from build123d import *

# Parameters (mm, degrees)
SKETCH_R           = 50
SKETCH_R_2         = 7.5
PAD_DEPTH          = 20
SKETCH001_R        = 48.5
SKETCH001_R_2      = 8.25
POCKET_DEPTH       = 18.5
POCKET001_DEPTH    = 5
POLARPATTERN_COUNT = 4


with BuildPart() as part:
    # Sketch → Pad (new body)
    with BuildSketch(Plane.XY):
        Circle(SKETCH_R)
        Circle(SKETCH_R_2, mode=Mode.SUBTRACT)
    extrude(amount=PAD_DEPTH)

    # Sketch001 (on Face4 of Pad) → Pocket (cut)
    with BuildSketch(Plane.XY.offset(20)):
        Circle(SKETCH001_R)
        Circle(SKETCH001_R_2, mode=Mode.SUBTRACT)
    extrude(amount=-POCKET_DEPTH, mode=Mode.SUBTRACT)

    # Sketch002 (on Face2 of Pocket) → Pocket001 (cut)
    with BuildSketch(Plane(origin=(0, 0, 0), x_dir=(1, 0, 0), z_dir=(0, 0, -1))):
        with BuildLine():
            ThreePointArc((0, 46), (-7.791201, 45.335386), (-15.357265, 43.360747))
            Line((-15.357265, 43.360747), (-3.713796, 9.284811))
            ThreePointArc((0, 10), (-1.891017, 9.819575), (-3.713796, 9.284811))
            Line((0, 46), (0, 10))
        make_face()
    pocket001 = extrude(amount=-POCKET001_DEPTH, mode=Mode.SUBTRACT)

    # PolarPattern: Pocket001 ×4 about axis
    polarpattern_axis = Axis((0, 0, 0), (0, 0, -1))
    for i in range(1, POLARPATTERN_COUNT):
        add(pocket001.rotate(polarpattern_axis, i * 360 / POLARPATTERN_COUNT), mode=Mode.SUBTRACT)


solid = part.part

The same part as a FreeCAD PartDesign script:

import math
import FreeCAD as App
import Part
import Sketcher
from FreeCAD import Vector

doc = App.newDocument("Part")
body = doc.addObject("PartDesign::Body", "Body")

sketch1 = doc.addObject("Sketcher::SketchObject", "Sketch")
body.addObject(sketch1)
sketch1.AttachmentSupport = (doc.XY_Plane, [""])
sketch1.MapMode = "FlatFace"
sketch1.addGeometry(Part.Circle(Vector(0, 0, 0), Vector(0, 0, 1), 50), False)
sketch1.addGeometry(Part.Circle(Vector(0, 0, 0), Vector(0, 0, 1), 8), False)
sketch1.addConstraint(Sketcher.Constraint("Coincident", 0, 3, -1, 1))
sketch1.addConstraint(Sketcher.Constraint("Coincident", 1, 3, -1, 1))
sketch1.addConstraint(Sketcher.Constraint("Diameter", 0, 100.0))
sketch1.addConstraint(Sketcher.Constraint("Diameter", 1, 15.0))
pad1 = doc.addObject("PartDesign::Pad", "Pad")
body.addObject(pad1)
pad1.Profile = sketch1
pad1.Length = 20

sketch2 = doc.addObject("Sketcher::SketchObject", "Sketch001")
body.addObject(sketch2)
sketch2.AttachmentSupport = (doc.XY_Plane, [""])
sketch2.MapMode = "FlatFace"
sketch2.AttachmentOffset = App.Placement(Vector(0, 0, 20), App.Rotation())
sketch2.addGeometry(Part.Circle(Vector(0, 0, 0), Vector(0, 0, 1), 48), False)
sketch2.addGeometry(Part.Circle(Vector(0, 0, 0), Vector(0, 0, 1), 8), False)
sketch2.addConstraint(Sketcher.Constraint("Coincident", 0, 3, -1, 1))
sketch2.addConstraint(Sketcher.Constraint("Coincident", 1, 3, -1, 1))
sketch2.addConstraint(Sketcher.Constraint("Diameter", 0, 97.0))
sketch2.addConstraint(Sketcher.Constraint("Diameter", 1, 16.5))
pocket1 = doc.addObject("PartDesign::Pocket", "Pocket")
body.addObject(pocket1)
pocket1.Profile = sketch2
pocket1.Length = 18.5

sketch3 = doc.addObject("Sketcher::SketchObject", "Sketch002")
body.addObject(sketch3)
sketch3.AttachmentSupport = (doc.XY_Plane, [""])
sketch3.MapMode = "FlatFace"
sketch3.addGeometry(Part.ArcOfCircle(Part.Circle(Vector(0, 0, 0), Vector(0, 0, 1), 46), math.radians(-109.5), math.radians(-90)), False)
sketch3.addGeometry(Part.LineSegment(Vector(-15.4, -43.4, 0), Vector(-3.7, -9.3, 0)), False)
sketch3.addGeometry(Part.ArcOfCircle(Part.Circle(Vector(0, 0, 0), Vector(0, 0, 1), 10), math.radians(-112), math.radians(-90)), False)
sketch3.addGeometry(Part.LineSegment(Vector(0, -10, 0), Vector(0, -46, 0)), False)
sketch3.addConstraint(Sketcher.Constraint("Coincident", 0, 1, 1, 1))
sketch3.addConstraint(Sketcher.Constraint("Coincident", 1, 2, 2, 1))
sketch3.addConstraint(Sketcher.Constraint("Coincident", 2, 2, 3, 1))
sketch3.addConstraint(Sketcher.Constraint("Coincident", 3, 2, 0, 2))
sketch3.addConstraint(Sketcher.Constraint("Vertical", 3))
sketch3.addConstraint(Sketcher.Constraint("Coincident", 2, 3, -1, 1))
sketch3.addConstraint(Sketcher.Constraint("PointOnObject", 2, 2, -2))
sketch3.addConstraint(Sketcher.Constraint("Radius", 2, 9.999999))
sketch3.addConstraint(Sketcher.Constraint("DistanceY", 3, 2, 3, 1, 36.0))
sketch3.addConstraint(Sketcher.Constraint("Radius", 0, 45.999961))
sketch3.addConstraint(Sketcher.Constraint("DistanceY", 1, 2, -1, 1, 9.284811))
sketch3.addConstraint(Sketcher.Constraint("DistanceX", 0, 1, 0, 3, 15.357259))
sketch3.addConstraint(Sketcher.Constraint("DistanceX", 1, 2, 0, 3, 3.71379))
pocket2 = doc.addObject("PartDesign::Pocket", "Pocket001")
body.addObject(pocket2)
pocket2.Profile = sketch3
pocket2.Length = 5
pocket2.Reversed = True
doc.recompute()

polarpattern = doc.addObject("PartDesign::PolarPattern", "PolarPattern")
body.addObject(polarpattern)
polarpattern.Originals = [pocket2]
polarpattern.Axis = (doc.Z_Axis, [""])
polarpattern.Angle = 360
polarpattern.Occurrences = 4
body.Tip = polarpattern

doc.recompute()
